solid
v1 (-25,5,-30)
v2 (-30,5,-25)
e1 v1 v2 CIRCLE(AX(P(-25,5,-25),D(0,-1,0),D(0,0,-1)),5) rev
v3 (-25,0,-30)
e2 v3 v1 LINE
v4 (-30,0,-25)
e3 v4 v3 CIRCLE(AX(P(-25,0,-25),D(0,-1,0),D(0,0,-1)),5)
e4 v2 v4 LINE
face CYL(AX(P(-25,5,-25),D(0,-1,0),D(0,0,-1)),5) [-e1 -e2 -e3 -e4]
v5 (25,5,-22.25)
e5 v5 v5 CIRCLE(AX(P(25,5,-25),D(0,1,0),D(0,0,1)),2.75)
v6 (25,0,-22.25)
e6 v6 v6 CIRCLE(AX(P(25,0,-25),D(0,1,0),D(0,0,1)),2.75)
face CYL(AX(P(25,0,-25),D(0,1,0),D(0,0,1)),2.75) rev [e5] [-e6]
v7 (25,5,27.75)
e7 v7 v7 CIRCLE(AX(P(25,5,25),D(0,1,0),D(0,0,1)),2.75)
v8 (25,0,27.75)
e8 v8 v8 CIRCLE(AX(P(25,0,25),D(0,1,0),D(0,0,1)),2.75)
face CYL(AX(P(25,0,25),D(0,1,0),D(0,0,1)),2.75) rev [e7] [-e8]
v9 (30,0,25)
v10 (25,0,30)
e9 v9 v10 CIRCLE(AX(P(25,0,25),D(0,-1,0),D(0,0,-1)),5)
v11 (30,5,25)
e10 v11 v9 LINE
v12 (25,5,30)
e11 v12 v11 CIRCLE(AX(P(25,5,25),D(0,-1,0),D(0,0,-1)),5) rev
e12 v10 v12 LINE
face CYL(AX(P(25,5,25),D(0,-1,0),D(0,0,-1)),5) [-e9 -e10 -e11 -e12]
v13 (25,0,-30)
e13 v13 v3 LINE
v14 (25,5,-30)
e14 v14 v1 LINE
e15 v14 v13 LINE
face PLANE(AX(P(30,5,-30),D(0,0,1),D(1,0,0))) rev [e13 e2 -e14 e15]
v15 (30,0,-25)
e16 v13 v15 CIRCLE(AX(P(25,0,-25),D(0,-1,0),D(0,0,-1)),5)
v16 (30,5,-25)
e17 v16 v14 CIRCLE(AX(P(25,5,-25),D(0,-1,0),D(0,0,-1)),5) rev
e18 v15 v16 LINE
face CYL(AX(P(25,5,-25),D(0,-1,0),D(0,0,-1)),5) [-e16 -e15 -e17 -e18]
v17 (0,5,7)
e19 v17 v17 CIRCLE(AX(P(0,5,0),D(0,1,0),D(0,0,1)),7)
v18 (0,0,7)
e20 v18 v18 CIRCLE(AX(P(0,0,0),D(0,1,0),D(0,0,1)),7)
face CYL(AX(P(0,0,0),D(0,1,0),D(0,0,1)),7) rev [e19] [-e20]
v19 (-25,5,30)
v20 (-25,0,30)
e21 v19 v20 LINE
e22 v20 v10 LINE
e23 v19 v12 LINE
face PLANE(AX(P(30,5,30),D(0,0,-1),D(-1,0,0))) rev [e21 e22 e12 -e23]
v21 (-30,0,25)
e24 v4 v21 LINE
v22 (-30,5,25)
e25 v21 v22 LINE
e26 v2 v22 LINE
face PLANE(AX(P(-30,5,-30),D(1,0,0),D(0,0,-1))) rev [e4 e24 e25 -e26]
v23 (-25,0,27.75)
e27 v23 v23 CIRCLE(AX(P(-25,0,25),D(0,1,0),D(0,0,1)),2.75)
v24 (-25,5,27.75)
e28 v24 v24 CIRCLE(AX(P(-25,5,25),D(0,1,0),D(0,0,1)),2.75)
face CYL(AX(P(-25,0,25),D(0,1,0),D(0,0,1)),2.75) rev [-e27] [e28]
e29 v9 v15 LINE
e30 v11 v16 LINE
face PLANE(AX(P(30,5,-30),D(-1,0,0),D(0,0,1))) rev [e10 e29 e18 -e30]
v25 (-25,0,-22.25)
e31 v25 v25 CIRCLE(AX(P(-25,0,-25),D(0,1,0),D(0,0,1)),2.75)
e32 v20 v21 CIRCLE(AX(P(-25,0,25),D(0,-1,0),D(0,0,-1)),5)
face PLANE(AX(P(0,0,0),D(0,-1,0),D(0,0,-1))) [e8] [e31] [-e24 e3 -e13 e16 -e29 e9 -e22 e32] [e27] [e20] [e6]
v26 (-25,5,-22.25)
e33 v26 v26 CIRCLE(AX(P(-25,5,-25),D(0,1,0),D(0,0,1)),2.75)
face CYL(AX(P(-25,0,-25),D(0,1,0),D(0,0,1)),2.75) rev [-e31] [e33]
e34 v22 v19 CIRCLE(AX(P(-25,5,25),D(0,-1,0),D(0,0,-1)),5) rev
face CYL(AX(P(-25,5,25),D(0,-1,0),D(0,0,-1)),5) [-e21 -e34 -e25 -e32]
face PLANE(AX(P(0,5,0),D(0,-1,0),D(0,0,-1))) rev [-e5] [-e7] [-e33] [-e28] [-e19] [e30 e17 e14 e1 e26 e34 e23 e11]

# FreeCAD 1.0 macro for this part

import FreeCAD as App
import Part
import Sketcher

V = App.Vector
Q = App.Units.Quantity


def edges_at(feature, points):
    """Names of the edges that pass closest to the given points."""
    edges = feature.Shape.Edges
    near = lambda p: min(range(len(edges)), key=lambda i: edges[i].distToShape(Part.Vertex(*p))[0])
    return sorted({f"Edge{near(p) + 1}" for p in points})

doc = App.newDocument("Part")
params = doc.addObject("Spreadsheet::Sheet", "Params")
for row, (alias, value) in enumerate([
    ("sketch1_width", "60 mm"),
    ("pad1_length", "5 mm"),
    ("sketch2_diameter", "5.5 mm"),
    ("pocket1_length", "5 mm"),
    ("fillet_radius", "5 mm"),
    ("sketch3_diameter", "14 mm"),
    ("pocket2_length", "5 mm"),
], start=1):
    params.set(f"A{row}", alias)
    params.set(f"B{row}", "=" + value)
    params.setAlias(f"B{row}", alias)

body = doc.addObject("PartDesign::Body", "Body")

# Sketch on XZ plane
sketch1 = body.newObject("Sketcher::SketchObject", "Sketch")
sketch1.AttachmentSupport = (doc.getObject("XZ_Plane"), [""])
sketch1.MapMode = "FlatFace"
sketch1.addGeometry(Part.LineSegment(V(-30, -30, 0), V(-30, 30, 0)), False)
sketch1.addGeometry(Part.LineSegment(V(-30, 30, 0), V(30, 30, 0)), False)
sketch1.addGeometry(Part.LineSegment(V(30, 30, 0), V(30, -30, 0)), False)
sketch1.addGeometry(Part.LineSegment(V(30, -30, 0), V(-30, -30, 0)), False)
sketch1.addConstraint(Sketcher.Constraint("Coincident", 0, 2, 1, 1))
sketch1.addConstraint(Sketcher.Constraint("Coincident", 1, 2, 2, 1))
sketch1.addConstraint(Sketcher.Constraint("Coincident", 2, 2, 3, 1))
sketch1.addConstraint(Sketcher.Constraint("Coincident", 3, 2, 0, 1))
sketch1.addConstraint(Sketcher.Constraint("Vertical", 0))
sketch1.addConstraint(Sketcher.Constraint("Horizontal", 1))
sketch1.addConstraint(Sketcher.Constraint("Vertical", 2))
sketch1.addConstraint(Sketcher.Constraint("Horizontal", 3))
sketch1.addConstraint(Sketcher.Constraint("Symmetric", 0, 2, 2, 2, -1, 1))
sketch1.addConstraint(Sketcher.Constraint("Equal", 3, 0))
sketch1.addConstraint(Sketcher.Constraint("DistanceX", 1, 1, 1, 2, Q("60 mm")))
sketch1.setExpression("Constraints[10]", "Params.sketch1_width")
pad1 = body.newObject("PartDesign::Pad", "Pad")
pad1.Profile = sketch1
pad1.setExpression("Length", "Params.pad1_length")
pad1.Reversed = True

# Sketch on XZ plane
sketch2 = body.newObject("Sketcher::SketchObject", "Sketch001")
sketch2.AttachmentSupport = (doc.getObject("XZ_Plane"), [""])
sketch2.MapMode = "FlatFace"
sketch2.AttachmentOffset = App.Placement(V(0, 0, -5), App.Rotation())
sketch2.addGeometry(Part.Circle(V(25, -25, 0), V(0, 0, 1), 2.8), False)
sketch2.addGeometry(Part.Circle(V(-25, -25, 0), V(0, 0, 1), 2.8), False)
sketch2.addGeometry(Part.Circle(V(-25, 25, 0), V(0, 0, 1), 2.8), False)
sketch2.addGeometry(Part.Circle(V(25, 25, 0), V(0, 0, 1), 2.8), False)
sketch2.addConstraint(Sketcher.Constraint("Equal", 0, 1))
sketch2.addConstraint(Sketcher.Constraint("Equal", 1, 2))
sketch2.addConstraint(Sketcher.Constraint("Equal", 2, 3))
sketch2.addConstraint(Sketcher.Constraint("Symmetric", 0, 3, 2, 3, -1, 1))
sketch2.addConstraint(Sketcher.Constraint("Symmetric", 1, 3, 3, 3, -1, 1))
sketch2.addConstraint(Sketcher.Constraint("Symmetric", 0, 3, 1, 3, -2))
sketch2.addConstraint(Sketcher.Constraint("Diameter", 0, Q("5.5 mm")))
sketch2.addConstraint(Sketcher.Constraint("DistanceX", -1, 1, 0, 3, Q("25 mm")))
sketch2.addConstraint(Sketcher.Constraint("DistanceY", 0, 3, -1, 1, Q("25 mm")))
sketch2.setExpression("Constraints[6]", "Params.sketch2_diameter")
pocket1 = body.newObject("PartDesign::Pocket", "Pocket")
pocket1.Profile = sketch2
pocket1.setExpression("Length", "Params.pocket1_length")
pocket1.Reversed = True
doc.recompute()

fillet = body.newObject("PartDesign::Fillet", "Fillet")
fillet.Base = (pocket1, edges_at(pocket1, [
    (-30, 2.5, -30),
    (30, 2.5, -30),
    (30, 2.5, 30),
    (-30, 2.5, 30),
]))
fillet.setExpression("Radius", "Params.fillet_radius")

# Sketch on XZ plane
sketch3 = body.newObject("Sketcher::SketchObject", "Sketch002")
sketch3.AttachmentSupport = (doc.getObject("XZ_Plane"), [""])
sketch3.MapMode = "FlatFace"
sketch3.AttachmentOffset = App.Placement(V(0, 0, -5), App.Rotation())
sketch3.addGeometry(Part.Circle(V(0, 0, 0), V(0, 0, 1), 7), False)
sketch3.addConstraint(Sketcher.Constraint("Coincident", 0, 3, -1, 1))
sketch3.addConstraint(Sketcher.Constraint("Diameter", 0, Q("14 mm")))
sketch3.setExpression("Constraints[1]", "Params.sketch3_diameter")
pocket2 = body.newObject("PartDesign::Pocket", "Pocket001")
pocket2.Profile = sketch3
pocket2.setExpression("Length", "Params.pocket2_length")
pocket2.Reversed = True

doc.recompute()
